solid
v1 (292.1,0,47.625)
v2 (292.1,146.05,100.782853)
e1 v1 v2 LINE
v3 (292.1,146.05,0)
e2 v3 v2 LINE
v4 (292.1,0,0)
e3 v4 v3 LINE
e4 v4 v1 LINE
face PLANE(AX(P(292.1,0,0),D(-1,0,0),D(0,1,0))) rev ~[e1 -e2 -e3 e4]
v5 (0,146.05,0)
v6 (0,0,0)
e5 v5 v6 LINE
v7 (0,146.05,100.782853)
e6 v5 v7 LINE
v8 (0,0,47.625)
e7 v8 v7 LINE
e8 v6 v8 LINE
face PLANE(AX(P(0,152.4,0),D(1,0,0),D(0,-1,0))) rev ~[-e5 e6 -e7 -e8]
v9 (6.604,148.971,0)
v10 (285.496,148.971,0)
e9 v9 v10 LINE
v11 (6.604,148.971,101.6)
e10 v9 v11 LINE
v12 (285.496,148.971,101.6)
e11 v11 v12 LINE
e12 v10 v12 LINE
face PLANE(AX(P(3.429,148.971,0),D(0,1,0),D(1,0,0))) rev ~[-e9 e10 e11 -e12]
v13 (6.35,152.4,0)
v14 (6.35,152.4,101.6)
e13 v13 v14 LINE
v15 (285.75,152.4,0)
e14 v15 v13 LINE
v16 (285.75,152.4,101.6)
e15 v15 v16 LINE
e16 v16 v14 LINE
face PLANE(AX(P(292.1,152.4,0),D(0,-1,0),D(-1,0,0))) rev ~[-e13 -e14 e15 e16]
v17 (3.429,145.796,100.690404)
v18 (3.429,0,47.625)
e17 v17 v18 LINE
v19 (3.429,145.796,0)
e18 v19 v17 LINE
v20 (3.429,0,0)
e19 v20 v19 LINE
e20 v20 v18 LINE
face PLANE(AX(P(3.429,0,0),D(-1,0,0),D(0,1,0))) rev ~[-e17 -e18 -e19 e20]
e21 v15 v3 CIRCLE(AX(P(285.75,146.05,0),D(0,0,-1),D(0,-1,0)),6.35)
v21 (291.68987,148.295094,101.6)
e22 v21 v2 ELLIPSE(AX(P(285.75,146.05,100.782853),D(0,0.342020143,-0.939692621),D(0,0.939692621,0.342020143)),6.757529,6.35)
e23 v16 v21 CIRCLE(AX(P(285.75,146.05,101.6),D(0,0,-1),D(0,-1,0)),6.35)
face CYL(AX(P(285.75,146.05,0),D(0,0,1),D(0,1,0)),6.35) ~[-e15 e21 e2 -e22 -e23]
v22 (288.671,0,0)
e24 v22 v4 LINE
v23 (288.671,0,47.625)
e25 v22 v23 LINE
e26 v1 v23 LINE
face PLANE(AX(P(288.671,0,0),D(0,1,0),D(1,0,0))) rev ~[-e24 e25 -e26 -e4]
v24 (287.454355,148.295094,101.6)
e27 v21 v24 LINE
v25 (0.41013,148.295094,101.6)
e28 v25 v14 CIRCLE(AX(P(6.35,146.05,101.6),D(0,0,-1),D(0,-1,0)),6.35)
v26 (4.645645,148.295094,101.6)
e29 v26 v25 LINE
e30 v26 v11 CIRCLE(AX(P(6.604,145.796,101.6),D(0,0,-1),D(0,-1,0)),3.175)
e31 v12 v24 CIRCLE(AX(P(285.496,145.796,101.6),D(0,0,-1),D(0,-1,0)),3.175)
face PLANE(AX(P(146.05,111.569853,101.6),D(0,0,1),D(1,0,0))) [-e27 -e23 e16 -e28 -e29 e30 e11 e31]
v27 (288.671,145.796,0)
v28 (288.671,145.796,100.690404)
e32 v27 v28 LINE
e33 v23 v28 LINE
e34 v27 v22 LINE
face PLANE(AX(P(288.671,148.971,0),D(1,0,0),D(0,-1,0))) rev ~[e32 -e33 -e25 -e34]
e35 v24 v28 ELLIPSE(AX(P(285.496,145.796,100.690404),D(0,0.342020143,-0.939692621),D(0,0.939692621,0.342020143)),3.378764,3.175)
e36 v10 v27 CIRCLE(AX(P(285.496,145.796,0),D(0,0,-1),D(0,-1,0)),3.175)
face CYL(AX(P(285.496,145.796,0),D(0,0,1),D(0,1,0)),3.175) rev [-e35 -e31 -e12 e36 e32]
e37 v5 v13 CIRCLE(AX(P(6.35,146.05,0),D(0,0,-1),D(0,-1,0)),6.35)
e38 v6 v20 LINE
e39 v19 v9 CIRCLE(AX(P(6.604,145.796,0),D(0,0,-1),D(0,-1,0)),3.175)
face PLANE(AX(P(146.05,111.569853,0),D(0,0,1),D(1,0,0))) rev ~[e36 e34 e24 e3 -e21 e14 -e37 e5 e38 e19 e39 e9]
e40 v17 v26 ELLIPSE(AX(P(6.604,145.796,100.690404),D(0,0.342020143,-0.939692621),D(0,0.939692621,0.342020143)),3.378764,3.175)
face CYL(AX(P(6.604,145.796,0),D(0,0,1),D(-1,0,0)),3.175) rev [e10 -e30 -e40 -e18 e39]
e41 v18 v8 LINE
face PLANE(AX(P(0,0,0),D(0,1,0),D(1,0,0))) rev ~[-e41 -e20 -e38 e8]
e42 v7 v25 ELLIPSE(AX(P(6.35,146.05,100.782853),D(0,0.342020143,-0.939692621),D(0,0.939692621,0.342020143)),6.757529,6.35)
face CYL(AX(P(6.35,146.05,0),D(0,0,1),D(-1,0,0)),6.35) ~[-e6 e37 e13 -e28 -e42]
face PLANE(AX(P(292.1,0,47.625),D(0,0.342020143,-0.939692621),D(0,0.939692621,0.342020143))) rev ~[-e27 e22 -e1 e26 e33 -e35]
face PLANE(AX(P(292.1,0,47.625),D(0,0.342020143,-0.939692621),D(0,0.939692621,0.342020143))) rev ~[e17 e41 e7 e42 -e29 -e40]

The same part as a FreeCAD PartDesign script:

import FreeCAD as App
import Part
import Sketcher
from FreeCAD import Vector
Q = App.Units.Quantity


def edges_at(feature, points):
    """Names of the edges that pass closest to the given points."""
    edges = feature.Shape.Edges
    near = lambda p: min(range(len(edges)), key=lambda i: edges[i].distToShape(Part.Vertex(*p))[0])
    return sorted({f"Edge{near(p) + 1}" for p in points})


def add_polygon(sketch, points):
    """Adds a closed chain of lines whose ends are joined by coincident constraints."""
    first, n = sketch.GeometryCount, len(points)
    for a, b in zip(points, points[1:] + points[:1]):
        sketch.addGeometry(Part.LineSegment(App.Vector(*a, 0), App.Vector(*b, 0)), False)
    for i in range(n):
        sketch.addConstraint(Sketcher.Constraint("Coincident", first + i, 2, first + (i + 1) % n, 1))

doc = App.newDocument("Part")
body = doc.addObject("PartDesign::Body", "Body")

# Sketch on XY plane
sketch1 = doc.addObject("Sketcher::SketchObject", "Sketch")
body.addObject(sketch1)
sketch1.AttachmentSupport = (doc.XY_Plane, [""])
sketch1.MapMode = "FlatFace"
add_polygon(sketch1, [(0, 152.4), (0, 0), (3.4, 0), (3.4, 149), (288.7, 149), (288.7, 0), (292.1, 0), (292.1, 152.4)])  # lines 0-7
sketch1.addConstraint(Sketcher.Constraint("Vertical", 0))
sketch1.addConstraint(Sketcher.Constraint("Horizontal", 1))
sketch1.addConstraint(Sketcher.Constraint("Vertical", 2))
sketch1.addConstraint(Sketcher.Constraint("Horizontal", 3))
sketch1.addConstraint(Sketcher.Constraint("Vertical", 4))
sketch1.addConstraint(Sketcher.Constraint("Horizontal", 5))
sketch1.addConstraint(Sketcher.Constraint("Vertical", 6))
sketch1.addConstraint(Sketcher.Constraint("Horizontal", 7))
sketch1.addConstraint(Sketcher.Constraint("Coincident", 0, 2, -1, 1))
sketch1.addConstraint(Sketcher.Constraint("PointOnObject", 4, 2, -1))
sketch1.addConstraint(Sketcher.Constraint("Equal", 1, 5))
sketch1.addConstraint(Sketcher.Constraint("DistanceY", 0, 2, 0, 1, Q("6 in")))
sketch1.addConstraint(Sketcher.Constraint("DistanceX", 7, 2, 7, 1, Q("11.5 in")))
sketch1.addConstraint(Sketcher.Constraint("DistanceX", 3, 1, 3, 2, Q("11.23 in")))
sketch1.addConstraint(Sketcher.Constraint("DistanceY", 2, 1, 2, 2, Q("5.865 in")))
pad1 = doc.addObject("PartDesign::Pad", "Pad")
body.addObject(pad1)
pad1.Profile = sketch1
pad1.Length = Q("4 in")

# Sketch on YZ plane
sketch2 = doc.addObject("Sketcher::SketchObject", "Sketch001")
body.addObject(sketch2)
sketch2.AttachmentSupport = (doc.YZ_Plane, [""])
sketch2.MapMode = "FlatFace"
sketch2.AttachmentOffset = App.Placement(Vector(0, 0, 11.5 * 25.4), App.Rotation())
add_polygon(sketch2, [(0, 102), (0, 48), (148, 102)])  # lines 0-2
sketch2.addConstraint(Sketcher.Constraint("Vertical", 0))
sketch2.addConstraint(Sketcher.Constraint("Horizontal", 2))
sketch2.addConstraint(Sketcher.Constraint("PointOnObject", 0, 2, -2))
sketch2.addConstraint(Sketcher.Constraint("DistanceY", -1, 1, 1, 2, Q("4 in")))
sketch2.addConstraint(Sketcher.Constraint("Angle", 1, Q("20 deg")))
sketch2.addConstraint(Sketcher.Constraint("DistanceY", 0, 2, 0, 1, Q("2.125 in")))
pocket1 = doc.addObject("PartDesign::Pocket", "Pocket")
body.addObject(pocket1)
pocket1.Profile = sketch2
pocket1.Type = "ThroughAll"
doc.recompute()

fillet = doc.addObject("PartDesign::Fillet", "Fillet")
body.addObject(fillet)
fillet.Base = (pocket1, edges_at(pocket1, [(288.671, 148.971, 50.8), (3.429, 148.971, 50.8)]))
fillet.Radius = Q("0.125 in")
doc.recompute()

fillet2 = doc.addObject("PartDesign::Fillet", "Fillet001")
body.addObject(fillet2)
fillet2.Base = (fillet, edges_at(fillet, [(0, 152.4, 50.8), (292.1, 152.4, 50.8)]))
fillet2.Radius = Q("0.25 in")

doc.recompute()
